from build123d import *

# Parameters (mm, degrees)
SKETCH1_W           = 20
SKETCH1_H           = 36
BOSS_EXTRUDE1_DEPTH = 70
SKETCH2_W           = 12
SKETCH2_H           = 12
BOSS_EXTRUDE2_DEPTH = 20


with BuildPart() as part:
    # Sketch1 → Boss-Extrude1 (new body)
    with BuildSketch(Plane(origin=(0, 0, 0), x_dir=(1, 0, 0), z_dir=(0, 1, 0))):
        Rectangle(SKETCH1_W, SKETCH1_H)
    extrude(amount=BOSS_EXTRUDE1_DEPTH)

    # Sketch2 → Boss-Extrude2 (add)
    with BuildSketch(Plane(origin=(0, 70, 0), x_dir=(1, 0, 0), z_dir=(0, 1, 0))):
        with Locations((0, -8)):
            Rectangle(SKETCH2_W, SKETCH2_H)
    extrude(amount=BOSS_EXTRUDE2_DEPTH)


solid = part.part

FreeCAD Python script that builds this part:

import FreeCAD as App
import Part
import Sketcher
Q = App.Units.Quantity


def add_polygon(sketch, points):
    """Adds a closed chain of lines whose ends are joined by coincident constraints."""
    first, n = sketch.GeometryCount, len(points)
    for a, b in zip(points, points[1:] + points[:1]):
        sketch.addGeometry(Part.LineSegment(App.Vector(*a, 0), App.Vector(*b, 0)), False)
    for i in range(n):
        sketch.addConstraint(Sketcher.Constraint("Coincident", first + i, 2, first + (i + 1) % n, 1))

doc = App.newDocument("Part")
body = doc.addObject("PartDesign::Body", "Body")

sketch1 = doc.addObject("Sketcher::SketchObject", "Sketch")
body.addObject(sketch1)
sketch1.AttachmentSupport = (doc.XZ_Plane, [""])
sketch1.MapMode = "FlatFace"
add_polygon(sketch1, [(-10, -18), (-10, 18), (10, 18), (10, -18)])
sketch1.addConstraint(Sketcher.Constraint("Vertical", 0))
sketch1.addConstraint(Sketcher.Constraint("Horizontal", 1))
sketch1.addConstraint(Sketcher.Constraint("Vertical", 2))
sketch1.addConstraint(Sketcher.Constraint("Horizontal", 3))
sketch1.addConstraint(Sketcher.Constraint("Symmetric", 0, 2, 2, 2, -1, 1))
sketch1.addConstraint(Sketcher.Constraint("DistanceX", 1, 1, 1, 2, Q("20 mm")))
sketch1.addConstraint(Sketcher.Constraint("DistanceY", 0, 1, 0, 2, Q("36 mm")))
pad1 = doc.addObject("PartDesign::Pad", "Pad")
body.addObject(pad1)
pad1.Profile = sketch1
pad1.Length = 70
pad1.Reversed = True

sketch2 = doc.addObject("Sketcher::SketchObject", "Sketch001")
body.addObject(sketch2)
sketch2.AttachmentSupport = (doc.XZ_Plane, [""])
sketch2.MapMode = "FlatFace"
sketch2.AttachmentOffset = App.Placement(App.Vector(0, 0, -70), App.Rotation())
add_polygon(sketch2, [(-6, 2), (-6, 14), (6, 14), (6, 2)])
sketch2.addConstraint(Sketcher.Constraint("Vertical", 0))
sketch2.addConstraint(Sketcher.Constraint("Horizontal", 1))
sketch2.addConstraint(Sketcher.Constraint("Vertical", 2))
sketch2.addConstraint(Sketcher.Constraint("Horizontal", 3))
sketch2.addConstraint(Sketcher.Constraint("Equal", 3, 0))
sketch2.addConstraint(Sketcher.Constraint("DistanceX", 1, 1, 1, 2, Q("12 mm")))
sketch2.addConstraint(Sketcher.Constraint("DistanceX", 0, 2, -1, 1, Q("6 mm")))
sketch2.addConstraint(Sketcher.Constraint("DistanceY", -1, 1, 0, 2, Q("14 mm")))
pad2 = doc.addObject("PartDesign::Pad", "Pad001")
body.addObject(pad2)
pad2.Profile = sketch2
pad2.Length = 20
pad2.Reversed = True

doc.recompute()
